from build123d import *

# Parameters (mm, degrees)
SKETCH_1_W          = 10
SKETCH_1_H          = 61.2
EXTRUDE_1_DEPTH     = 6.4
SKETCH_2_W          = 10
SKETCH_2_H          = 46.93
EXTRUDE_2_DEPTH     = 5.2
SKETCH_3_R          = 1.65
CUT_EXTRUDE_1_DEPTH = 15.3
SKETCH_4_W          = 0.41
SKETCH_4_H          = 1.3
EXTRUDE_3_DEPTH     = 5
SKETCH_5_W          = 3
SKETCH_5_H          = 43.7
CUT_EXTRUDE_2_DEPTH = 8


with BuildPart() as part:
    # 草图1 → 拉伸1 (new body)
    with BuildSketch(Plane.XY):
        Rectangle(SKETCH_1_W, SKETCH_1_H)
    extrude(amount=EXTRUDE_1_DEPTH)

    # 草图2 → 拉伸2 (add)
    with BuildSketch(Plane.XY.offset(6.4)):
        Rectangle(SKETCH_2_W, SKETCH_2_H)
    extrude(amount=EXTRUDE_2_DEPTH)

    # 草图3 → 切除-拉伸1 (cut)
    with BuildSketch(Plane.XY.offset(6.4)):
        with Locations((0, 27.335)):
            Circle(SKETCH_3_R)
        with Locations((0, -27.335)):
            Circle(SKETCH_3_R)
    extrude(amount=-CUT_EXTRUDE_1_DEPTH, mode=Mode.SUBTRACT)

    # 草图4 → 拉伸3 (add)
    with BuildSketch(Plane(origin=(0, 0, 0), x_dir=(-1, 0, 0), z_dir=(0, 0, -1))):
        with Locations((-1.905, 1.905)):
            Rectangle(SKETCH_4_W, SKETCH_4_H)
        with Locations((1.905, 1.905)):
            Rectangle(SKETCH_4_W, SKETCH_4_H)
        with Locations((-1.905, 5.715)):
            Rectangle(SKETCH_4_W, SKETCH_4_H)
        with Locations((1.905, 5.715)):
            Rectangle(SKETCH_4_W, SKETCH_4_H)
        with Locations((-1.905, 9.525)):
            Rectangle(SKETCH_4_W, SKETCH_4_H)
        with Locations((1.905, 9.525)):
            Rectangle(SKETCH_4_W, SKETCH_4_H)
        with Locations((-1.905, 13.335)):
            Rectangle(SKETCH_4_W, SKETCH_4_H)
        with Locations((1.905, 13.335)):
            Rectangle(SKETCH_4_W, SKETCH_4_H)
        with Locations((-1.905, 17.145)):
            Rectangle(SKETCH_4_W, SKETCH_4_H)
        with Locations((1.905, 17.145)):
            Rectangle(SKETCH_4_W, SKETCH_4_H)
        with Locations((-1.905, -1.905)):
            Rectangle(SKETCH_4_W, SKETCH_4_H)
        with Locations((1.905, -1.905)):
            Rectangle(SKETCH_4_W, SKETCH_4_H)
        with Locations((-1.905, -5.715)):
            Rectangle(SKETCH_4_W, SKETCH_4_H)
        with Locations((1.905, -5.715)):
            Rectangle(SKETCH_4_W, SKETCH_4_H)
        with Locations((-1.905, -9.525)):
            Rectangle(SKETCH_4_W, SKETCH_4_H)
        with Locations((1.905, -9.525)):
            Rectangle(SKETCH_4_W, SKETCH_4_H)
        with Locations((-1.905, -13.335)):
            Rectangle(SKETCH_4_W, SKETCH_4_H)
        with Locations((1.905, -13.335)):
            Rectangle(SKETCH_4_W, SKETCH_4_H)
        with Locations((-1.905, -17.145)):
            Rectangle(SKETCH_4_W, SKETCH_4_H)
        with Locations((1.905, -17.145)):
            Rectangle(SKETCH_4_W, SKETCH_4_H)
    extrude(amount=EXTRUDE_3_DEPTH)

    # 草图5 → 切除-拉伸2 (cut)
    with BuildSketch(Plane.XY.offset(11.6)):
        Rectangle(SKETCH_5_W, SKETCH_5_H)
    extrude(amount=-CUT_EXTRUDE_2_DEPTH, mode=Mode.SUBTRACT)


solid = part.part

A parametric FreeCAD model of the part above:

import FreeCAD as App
import Part
import Sketcher

doc = App.newDocument("Part")
params = doc.addObject("Spreadsheet::Sheet", "Params")
for row, (alias, value) in enumerate([
    ("sketch1_width", "10 mm"),
    ("sketch1_height", "61.2 mm"),
    ("pad1_length", "6.4 mm"),
    ("sketch2_width", "10 mm"),
    ("sketch2_height", "46.93 mm"),
    ("pad2_length", "5.2 mm"),
    ("sketch3_diameter", "3.3 mm"),
    ("pocket1_length", "15.3 mm"),
    ("sketch4_height", "1.3 mm"),
    ("sketch4_width", "0.41 mm"),
    ("pad3_length", "5 mm"),
    ("sketch5_width", "3 mm"),
    ("sketch5_height", "43.7 mm"),
    ("pocket2_length", "8 mm"),
], start=1):
    params.set(f"A{row}", alias)
    params.set(f"B{row}", "=" + value)
    params.setAlias(f"B{row}", alias)

body = doc.addObject("PartDesign::Body", "Body")

# Sketch on XY plane
sketch1 = body.newObject("Sketcher::SketchObject", "Sketch")
sketch1.AttachmentSupport = (doc.getObject("XY_Plane"), [""])
sketch1.MapMode = "FlatFace"
sketch1.addGeometry([
    Part.LineSegment(App.Vector(-5, 31, 0), App.Vector(-5, -31, 0)),
    Part.LineSegment(App.Vector(-5, -31, 0), App.Vector(5, -31, 0)),
    Part.LineSegment(App.Vector(5, -31, 0), App.Vector(5, 31, 0)),
    Part.LineSegment(App.Vector(5, 31, 0), App.Vector(-5, 31, 0)),
], False)
sketch1.addConstraint([
    Sketcher.Constraint("Coincident", 0, 2, 1, 1),
    Sketcher.Constraint("Coincident", 1, 2, 2, 1),
    Sketcher.Constraint("Coincident", 2, 2, 3, 1),
    Sketcher.Constraint("Coincident", 3, 2, 0, 1),
    Sketcher.Constraint("Vertical", 0),
    Sketcher.Constraint("Horizontal", 1),
    Sketcher.Constraint("Vertical", 2),
    Sketcher.Constraint("Horizontal", 3),
    Sketcher.Constraint("Symmetric", 0, 2, 2, 2, -1, 1),
    Sketcher.Constraint("DistanceX", 1, 1, 1, 2, 10.0),
    Sketcher.Constraint("DistanceY", 0, 2, 0, 1, 61.2),
])
sketch1.setExpression("Constraints[9]", "Params.sketch1_width")
sketch1.setExpression("Constraints[10]", "Params.sketch1_height")
pad1 = body.newObject("PartDesign::Pad", "Pad")
pad1.Profile = sketch1
pad1.setExpression("Length", "Params.pad1_length")

# Sketch on XY plane
sketch2 = body.newObject("Sketcher::SketchObject", "Sketch001")
sketch2.AttachmentSupport = (doc.getObject("XY_Plane"), [""])
sketch2.MapMode = "FlatFace"
sketch2.AttachmentOffset = App.Placement(App.Vector(0, 0, 6.4), App.Rotation())
sketch2.addGeometry([
    Part.LineSegment(App.Vector(-5, 23, 0), App.Vector(-5, -23, 0)),
    Part.LineSegment(App.Vector(-5, -23, 0), App.Vector(5, -23, 0)),
    Part.LineSegment(App.Vector(5, -23, 0), App.Vector(5, 23, 0)),
    Part.LineSegment(App.Vector(5, 23, 0), App.Vector(-5, 23, 0)),
], False)
sketch2.addConstraint([
    Sketcher.Constraint("Coincident", 0, 2, 1, 1),
    Sketcher.Constraint("Coincident", 1, 2, 2, 1),
    Sketcher.Constraint("Coincident", 2, 2, 3, 1),
    Sketcher.Constraint("Coincident", 3, 2, 0, 1),
    Sketcher.Constraint("Vertical", 0),
    Sketcher.Constraint("Horizontal", 1),
    Sketcher.Constraint("Vertical", 2),
    Sketcher.Constraint("Horizontal", 3),
    Sketcher.Constraint("Symmetric", 0, 2, 2, 2, -1, 1),
    Sketcher.Constraint("DistanceX", 1, 1, 1, 2, 10.0),
    Sketcher.Constraint("DistanceY", 0, 2, 0, 1, 46.93),
])
sketch2.setExpression("Constraints[9]", "Params.sketch2_width")
sketch2.setExpression("Constraints[10]", "Params.sketch2_height")
pad2 = body.newObject("PartDesign::Pad", "Pad001")
pad2.Profile = sketch2
pad2.setExpression("Length", "Params.pad2_length")

# Sketch on XY plane
sketch3 = body.newObject("Sketcher::SketchObject", "Sketch002")
sketch3.AttachmentSupport = (doc.getObject("XY_Plane"), [""])
sketch3.MapMode = "FlatFace"
sketch3.AttachmentOffset = App.Placement(App.Vector(0, 0, 6.4), App.Rotation())
sketch3.addGeometry([
    Part.Circle(App.Vector(0, 27.3, 0), App.Vector(0, 0, 1), 1.6),
    Part.Circle(App.Vector(0, -27.3, 0), App.Vector(0, 0, 1), 1.6),
], False)
sketch3.addConstraint([
    Sketcher.Constraint("Equal", 0, 1),
    Sketcher.Constraint("Symmetric", 0, 3, 1, 3, -1, 1),
    Sketcher.Constraint("PointOnObject", 0, 3, -2),
    Sketcher.Constraint("Diameter", 0, 3.3),
    Sketcher.Constraint("DistanceY", 1, 3, 0, 3, 54.67),
])
sketch3.setExpression("Constraints[3]", "Params.sketch3_diameter")
pocket1 = body.newObject("PartDesign::Pocket", "Pocket")
pocket1.Profile = sketch3
pocket1.setExpression("Length", "Params.pocket1_length")

# Sketch on XY plane
sketch4 = body.newObject("Sketcher::SketchObject", "Sketch003")
sketch4.AttachmentSupport = (doc.getObject("XY_Plane"), [""])
sketch4.MapMode = "FlatFace"
sketch4.addGeometry([
    Part.LineSegment(App.Vector(2.11, 2.56, 0), App.Vector(2.11, 1.25, 0)),  # 0
    Part.LineSegment(App.Vector(2.11, 1.25, 0), App.Vector(1.7, 1.25, 0)),  # 1
    Part.LineSegment(App.Vector(1.7, 1.25, 0), App.Vector(1.7, 2.56, 0)),  # 2
    Part.LineSegment(App.Vector(1.7, 2.56, 0), App.Vector(2.11, 2.56, 0)),  # 3
    Part.LineSegment(App.Vector(-1.7, 2.56, 0), App.Vector(-1.7, 1.25, 0)),  # 4
    Part.LineSegment(App.Vector(-1.7, 1.25, 0), App.Vector(-2.11, 1.25, 0)),  # 5
    Part.LineSegment(App.Vector(-2.11, 1.25, 0), App.Vector(-2.11, 2.56, 0)),  # 6
    Part.LineSegment(App.Vector(-2.11, 2.56, 0), App.Vector(-1.7, 2.56, 0)),  # 7
    Part.LineSegment(App.Vector(2.11, 6.37, 0), App.Vector(2.11, 5.07, 0)),  # 8
    Part.LineSegment(App.Vector(2.11, 5.07, 0), App.Vector(1.7, 5.07, 0)),  # 9
    Part.LineSegment(App.Vector(1.7, 5.07, 0), App.Vector(1.7, 6.37, 0)),  # 10
    Part.LineSegment(App.Vector(1.7, 6.37, 0), App.Vector(2.11, 6.37, 0)),  # 11
    Part.LineSegment(App.Vector(-1.7, 6.37, 0), App.Vector(-1.7, 5.07, 0)),  # 12
    Part.LineSegment(App.Vector(-1.7, 5.07, 0), App.Vector(-2.11, 5.07, 0)),  # 13
    Part.LineSegment(App.Vector(-2.11, 5.07, 0), App.Vector(-2.11, 6.37, 0)),  # 14
    Part.LineSegment(App.Vector(-2.11, 6.37, 0), App.Vector(-1.7, 6.37, 0)),  # 15
    Part.LineSegment(App.Vector(2.11, 10.18, 0), App.Vector(2.11, 8.88, 0)),  # 16
    Part.LineSegment(App.Vector(2.11, 8.88, 0), App.Vector(1.7, 8.88, 0)),  # 17
    Part.LineSegment(App.Vector(1.7, 8.88, 0), App.Vector(1.7, 10.18, 0)),  # 18
    Part.LineSegment(App.Vector(1.7, 10.18, 0), App.Vector(2.11, 10.18, 0)),  # 19
    Part.LineSegment(App.Vector(-1.7, 10.18, 0), App.Vector(-1.7, 8.88, 0)),  # 20
    Part.LineSegment(App.Vector(-1.7, 8.88, 0), App.Vector(-2.11, 8.88, 0)),  # 21
    Part.LineSegment(App.Vector(-2.11, 8.88, 0), App.Vector(-2.11, 10.18, 0)),  # 22
    Part.LineSegment(App.Vector(-2.11, 10.18, 0), App.Vector(-1.7, 10.18, 0)),  # 23
    Part.LineSegment(App.Vector(2.11, 13.98, 0), App.Vector(2.11, 12.69, 0)),  # 24
    Part.LineSegment(App.Vector(2.11, 12.69, 0), App.Vector(1.7, 12.69, 0)),  # 25
    Part.LineSegment(App.Vector(1.7, 12.69, 0), App.Vector(1.7, 13.98, 0)),  # 26
    Part.LineSegment(App.Vector(1.7, 13.98, 0), App.Vector(2.11, 13.98, 0)),  # 27
    Part.LineSegment(App.Vector(-1.7, 13.98, 0), App.Vector(-1.7, 12.69, 0)),  # 28
    Part.LineSegment(App.Vector(-1.7, 12.69, 0), App.Vector(-2.11, 12.69, 0)),  # 29
    Part.LineSegment(App.Vector(-2.11, 12.69, 0), App.Vector(-2.11, 13.98, 0)),  # 30
    Part.LineSegment(App.Vector(-2.11, 13.98, 0), App.Vector(-1.7, 13.98, 0)),  # 31
    Part.LineSegment(App.Vector(2.11, 17.8, 0), App.Vector(2.11, 16.5, 0)),  # 32
    Part.LineSegment(App.Vector(2.11, 16.5, 0), App.Vector(1.7, 16.5, 0)),  # 33
    Part.LineSegment(App.Vector(1.7, 16.5, 0), App.Vector(1.7, 17.8, 0)),  # 34
    Part.LineSegment(App.Vector(1.7, 17.8, 0), App.Vector(2.11, 17.8, 0)),  # 35
    Part.LineSegment(App.Vector(-1.7, 17.8, 0), App.Vector(-1.7, 16.5, 0)),  # 36
    Part.LineSegment(App.Vector(-1.7, 16.5, 0), App.Vector(-2.11, 16.5, 0)),  # 37
    Part.LineSegment(App.Vector(-2.11, 16.5, 0), App.Vector(-2.11, 17.8, 0)),  # 38
    Part.LineSegment(App.Vector(-2.11, 17.8, 0), App.Vector(-1.7, 17.8, 0)),  # 39
    Part.LineSegment(App.Vector(2.11, -1.25, 0), App.Vector(2.11, -2.56, 0)),  # 40
    Part.LineSegment(App.Vector(2.11, -2.56, 0), App.Vector(1.7, -2.56, 0)),  # 41
    Part.LineSegment(App.Vector(1.7, -2.56, 0), App.Vector(1.7, -1.25, 0)),  # 42
    Part.LineSegment(App.Vector(1.7, -1.25, 0), App.Vector(2.11, -1.25, 0)),  # 43
    Part.LineSegment(App.Vector(-1.7, -1.25, 0), App.Vector(-1.7, -2.56, 0)),  # 44
    Part.LineSegment(App.Vector(-1.7, -2.56, 0), App.Vector(-2.11, -2.56, 0)),  # 45
    Part.LineSegment(App.Vector(-2.11, -2.56, 0), App.Vector(-2.11, -1.25, 0)),  # 46
    Part.LineSegment(App.Vector(-2.11, -1.25, 0), App.Vector(-1.7, -1.25, 0)),  # 47
    Part.LineSegment(App.Vector(2.11, -5.07, 0), App.Vector(2.11, -6.37, 0)),  # 48
    Part.LineSegment(App.Vector(2.11, -6.37, 0), App.Vector(1.7, -6.37, 0)),  # 49
    Part.LineSegment(App.Vector(1.7, -6.37, 0), App.Vector(1.7, -5.07, 0)),  # 50
    Part.LineSegment(App.Vector(1.7, -5.07, 0), App.Vector(2.11, -5.07, 0)),  # 51
    Part.LineSegment(App.Vector(-1.7, -5.07, 0), App.Vector(-1.7, -6.37, 0)),  # 52
    Part.LineSegment(App.Vector(-1.7, -6.37, 0), App.Vector(-2.11, -6.37, 0)),  # 53
    Part.LineSegment(App.Vector(-2.11, -6.37, 0), App.Vector(-2.11, -5.07, 0)),  # 54
    Part.LineSegment(App.Vector(-2.11, -5.07, 0), App.Vector(-1.7, -5.07, 0)),  # 55
    Part.LineSegment(App.Vector(2.11, -8.88, 0), App.Vector(2.11, -10.18, 0)),  # 56
    Part.LineSegment(App.Vector(2.11, -10.18, 0), App.Vector(1.7, -10.18, 0)),  # 57
    Part.LineSegment(App.Vector(1.7, -10.18, 0), App.Vector(1.7, -8.88, 0)),  # 58
    Part.LineSegment(App.Vector(1.7, -8.88, 0), App.Vector(2.11, -8.88, 0)),  # 59
    Part.LineSegment(App.Vector(-1.7, -8.88, 0), App.Vector(-1.7, -10.18, 0)),  # 60
    Part.LineSegment(App.Vector(-1.7, -10.18, 0), App.Vector(-2.11, -10.18, 0)),  # 61
    Part.LineSegment(App.Vector(-2.11, -10.18, 0), App.Vector(-2.11, -8.88, 0)),  # 62
    Part.LineSegment(App.Vector(-2.11, -8.88, 0), App.Vector(-1.7, -8.88, 0)),  # 63
    Part.LineSegment(App.Vector(2.11, -12.69, 0), App.Vector(2.11, -13.98, 0)),  # 64
    Part.LineSegment(App.Vector(2.11, -13.98, 0), App.Vector(1.7, -13.98, 0)),  # 65
    Part.LineSegment(App.Vector(1.7, -13.98, 0), App.Vector(1.7, -12.69, 0)),  # 66
    Part.LineSegment(App.Vector(1.7, -12.69, 0), App.Vector(2.11, -12.69, 0)),  # 67
    Part.LineSegment(App.Vector(-1.7, -12.69, 0), App.Vector(-1.7, -13.98, 0)),  # 68
    Part.LineSegment(App.Vector(-1.7, -13.98, 0), App.Vector(-2.11, -13.98, 0)),  # 69
    Part.LineSegment(App.Vector(-2.11, -13.98, 0), App.Vector(-2.11, -12.69, 0)),  # 70
    Part.LineSegment(App.Vector(-2.11, -12.69, 0), App.Vector(-1.7, -12.69, 0)),  # 71
    Part.LineSegment(App.Vector(2.11, -16.5, 0), App.Vector(2.11, -17.8, 0)),  # 72
    Part.LineSegment(App.Vector(2.11, -17.8, 0), App.Vector(1.7, -17.8, 0)),  # 73
    Part.LineSegment(App.Vector(1.7, -17.8, 0), App.Vector(1.7, -16.5, 0)),  # 74
    Part.LineSegment(App.Vector(1.7, -16.5, 0), App.Vector(2.11, -16.5, 0)),  # 75
    Part.LineSegment(App.Vector(-1.7, -16.5, 0), App.Vector(-1.7, -17.8, 0)),  # 76
    Part.LineSegment(App.Vector(-1.7, -17.8, 0), App.Vector(-2.11, -17.8, 0)),  # 77
    Part.LineSegment(App.Vector(-2.11, -17.8, 0), App.Vector(-2.11, -16.5, 0)),  # 78
    Part.LineSegment(App.Vector(-2.11, -16.5, 0), App.Vector(-1.7, -16.5, 0)),  # 79
], False)
sketch4.addConstraint([
    Sketcher.Constraint("Coincident", 0, 2, 1, 1),
    Sketcher.Constraint("Coincident", 1, 2, 2, 1),
    Sketcher.Constraint("Coincident", 2, 2, 3, 1),
    Sketcher.Constraint("Coincident", 3, 2, 0, 1),
    Sketcher.Constraint("Coincident", 4, 2, 5, 1),
    Sketcher.Constraint("Coincident", 5, 2, 6, 1),
    Sketcher.Constraint("Coincident", 6, 2, 7, 1),
    Sketcher.Constraint("Coincident", 7, 2, 4, 1),
    Sketcher.Constraint("Coincident", 8, 2, 9, 1),
    Sketcher.Constraint("Coincident", 9, 2, 10, 1),
    Sketcher.Constraint("Coincident", 10, 2, 11, 1),
    Sketcher.Constraint("Coincident", 11, 2, 8, 1),
    Sketcher.Constraint("Coincident", 12, 2, 13, 1),
    Sketcher.Constraint("Coincident", 13, 2, 14, 1),
    Sketcher.Constraint("Coincident", 14, 2, 15, 1),
    Sketcher.Constraint("Coincident", 15, 2, 12, 1),
    Sketcher.Constraint("Coincident", 16, 2, 17, 1),
    Sketcher.Constraint("Coincident", 17, 2, 18, 1),
    Sketcher.Constraint("Coincident", 18, 2, 19, 1),
    Sketcher.Constraint("Coincident", 19, 2, 16, 1),
    Sketcher.Constraint("Coincident", 20, 2, 21, 1),
    Sketcher.Constraint("Coincident", 21, 2, 22, 1),
    Sketcher.Constraint("Coincident", 22, 2, 23, 1),
    Sketcher.Constraint("Coincident", 23, 2, 20, 1),
    Sketcher.Constraint("Coincident", 24, 2, 25, 1),
    Sketcher.Constraint("Coincident", 25, 2, 26, 1),
    Sketcher.Constraint("Coincident", 26, 2, 27, 1),
    Sketcher.Constraint("Coincident", 27, 2, 24, 1),
    Sketcher.Constraint("Coincident", 28, 2, 29, 1),
    Sketcher.Constraint("Coincident", 29, 2, 30, 1),
    Sketcher.Constraint("Coincident", 30, 2, 31, 1),
    Sketcher.Constraint("Coincident", 31, 2, 28, 1),
    Sketcher.Constraint("Coincident", 32, 2, 33, 1),
    Sketcher.Constraint("Coincident", 33, 2, 34, 1),
    Sketcher.Constraint("Coincident", 34, 2, 35, 1),
    Sketcher.Constraint("Coincident", 35, 2, 32, 1),
    Sketcher.Constraint("Coincident", 36, 2, 37, 1),
    Sketcher.Constraint("Coincident", 37, 2, 38, 1),
    Sketcher.Constraint("Coincident", 38, 2, 39, 1),
    Sketcher.Constraint("Coincident", 39, 2, 36, 1),
    Sketcher.Constraint("Coincident", 40, 2, 41, 1),
    Sketcher.Constraint("Coincident", 41, 2, 42, 1),
    Sketcher.Constraint("Coincident", 42, 2, 43, 1),
    Sketcher.Constraint("Coincident", 43, 2, 40, 1),
    Sketcher.Constraint("Coincident", 44, 2, 45, 1),
    Sketcher.Constraint("Coincident", 45, 2, 46, 1),
    Sketcher.Constraint("Coincident", 46, 2, 47, 1),
    Sketcher.Constraint("Coincident", 47, 2, 44, 1),
    Sketcher.Constraint("Coincident", 48, 2, 49, 1),
    Sketcher.Constraint("Coincident", 49, 2, 50, 1),
    Sketcher.Constraint("Coincident", 50, 2, 51, 1),
    Sketcher.Constraint("Coincident", 51, 2, 48, 1),
    Sketcher.Constraint("Coincident", 52, 2, 53, 1),
    Sketcher.Constraint("Coincident", 53, 2, 54, 1),
    Sketcher.Constraint("Coincident", 54, 2, 55, 1),
    Sketcher.Constraint("Coincident", 55, 2, 52, 1),
    Sketcher.Constraint("Coincident", 56, 2, 57, 1),
    Sketcher.Constraint("Coincident", 57, 2, 58, 1),
    Sketcher.Constraint("Coincident", 58, 2, 59, 1),
    Sketcher.Constraint("Coincident", 59, 2, 56, 1),
    Sketcher.Constraint("Coincident", 60, 2, 61, 1),
    Sketcher.Constraint("Coincident", 61, 2, 62, 1),
    Sketcher.Constraint("Coincident", 62, 2, 63, 1),
    Sketcher.Constraint("Coincident", 63, 2, 60, 1),
    Sketcher.Constraint("Coincident", 64, 2, 65, 1),
    Sketcher.Constraint("Coincident", 65, 2, 66, 1),
    Sketcher.Constraint("Coincident", 66, 2, 67, 1),
    Sketcher.Constraint("Coincident", 67, 2, 64, 1),
    Sketcher.Constraint("Coincident", 68, 2, 69, 1),
    Sketcher.Constraint("Coincident", 69, 2, 70, 1),
    Sketcher.Constraint("Coincident", 70, 2, 71, 1),
    Sketcher.Constraint("Coincident", 71, 2, 68, 1),
    Sketcher.Constraint("Coincident", 72, 2, 73, 1),
    Sketcher.Constraint("Coincident", 73, 2, 74, 1),
    Sketcher.Constraint("Coincident", 74, 2, 75, 1),
    Sketcher.Constraint("Coincident", 75, 2, 72, 1),
    Sketcher.Constraint("Coincident", 76, 2, 77, 1),
    Sketcher.Constraint("Coincident", 77, 2, 78, 1),
    Sketcher.Constraint("Coincident", 78, 2, 79, 1),
    Sketcher.Constraint("Coincident", 79, 2, 76, 1),
    Sketcher.Constraint("Vertical", 0),
    Sketcher.Constraint("Horizontal", 1),
    Sketcher.Constraint("Vertical", 2),
    Sketcher.Constraint("Horizontal", 3),
    Sketcher.Constraint("Vertical", 4),
    Sketcher.Constraint("Horizontal", 5),
    Sketcher.Constraint("Vertical", 6),
    Sketcher.Constraint("Horizontal", 7),
    Sketcher.Constraint("Vertical", 8),
    Sketcher.Constraint("Horizontal", 9),
    Sketcher.Constraint("Vertical", 10),
    Sketcher.Constraint("Horizontal", 11),
    Sketcher.Constraint("Vertical", 12),
    Sketcher.Constraint("Horizontal", 13),
    Sketcher.Constraint("Vertical", 14),
    Sketcher.Constraint("Horizontal", 15),
    Sketcher.Constraint("Vertical", 16),
    Sketcher.Constraint("Horizontal", 17),
    Sketcher.Constraint("Vertical", 18),
    Sketcher.Constraint("Horizontal", 19),
    Sketcher.Constraint("Vertical", 20),
    Sketcher.Constraint("Horizontal", 21),
    Sketcher.Constraint("Vertical", 22),
    Sketcher.Constraint("Horizontal", 23),
    Sketcher.Constraint("Vertical", 24),
    Sketcher.Constraint("Horizontal", 25),
    Sketcher.Constraint("Vertical", 26),
    Sketcher.Constraint("Horizontal", 27),
    Sketcher.Constraint("Vertical", 28),
    Sketcher.Constraint("Horizontal", 29),
    Sketcher.Constraint("Vertical", 30),
    Sketcher.Constraint("Horizontal", 31),
    Sketcher.Constraint("Vertical", 32),
    Sketcher.Constraint("Horizontal", 33),
    Sketcher.Constraint("Vertical", 34),
    Sketcher.Constraint("Horizontal", 35),
    Sketcher.Constraint("Vertical", 36),
    Sketcher.Constraint("Horizontal", 37),
    Sketcher.Constraint("Vertical", 38),
    Sketcher.Constraint("Horizontal", 39),
    Sketcher.Constraint("Vertical", 40),
    Sketcher.Constraint("Horizontal", 41),
    Sketcher.Constraint("Vertical", 42),
    Sketcher.Constraint("Horizontal", 43),
    Sketcher.Constraint("Vertical", 44),
    Sketcher.Constraint("Horizontal", 45),
    Sketcher.Constraint("Vertical", 46),
    Sketcher.Constraint("Horizontal", 47),
    Sketcher.Constraint("Vertical", 48),
    Sketcher.Constraint("Horizontal", 49),
    Sketcher.Constraint("Vertical", 50),
    Sketcher.Constraint("Horizontal", 51),
    Sketcher.Constraint("Vertical", 52),
    Sketcher.Constraint("Horizontal", 53),
    Sketcher.Constraint("Vertical", 54),
    Sketcher.Constraint("Horizontal", 55),
    Sketcher.Constraint("Vertical", 56),
    Sketcher.Constraint("Horizontal", 57),
    Sketcher.Constraint("Vertical", 58),
    Sketcher.Constraint("Horizontal", 59),
    Sketcher.Constraint("Vertical", 60),
    Sketcher.Constraint("Horizontal", 61),
    Sketcher.Constraint("Vertical", 62),
    Sketcher.Constraint("Horizontal", 63),
    Sketcher.Constraint("Vertical", 64),
    Sketcher.Constraint("Horizontal", 65),
    Sketcher.Constraint("Vertical", 66),
    Sketcher.Constraint("Horizontal", 67),
    Sketcher.Constraint("Vertical", 68),
    Sketcher.Constraint("Horizontal", 69),
    Sketcher.Constraint("Vertical", 70),
    Sketcher.Constraint("Horizontal", 71),
    Sketcher.Constraint("Vertical", 72),
    Sketcher.Constraint("Horizontal", 73),
    Sketcher.Constraint("Vertical", 74),
    Sketcher.Constraint("Horizontal", 75),
    Sketcher.Constraint("Vertical", 76),
    Sketcher.Constraint("Horizontal", 77),
    Sketcher.Constraint("Vertical", 78),
    Sketcher.Constraint("Horizontal", 79),
    Sketcher.Constraint("Symmetric", 6, 2, 40, 2, -1, 1),
    Sketcher.Constraint("Symmetric", 4, 2, 42, 2, -1, 1),
    Sketcher.Constraint("Symmetric", 2, 2, 44, 2, -1, 1),
    Sketcher.Constraint("Symmetric", 0, 2, 46, 2, -1, 1),
    Sketcher.Constraint("Symmetric", 14, 2, 48, 2, -1, 1),
    Sketcher.Constraint("Symmetric", 12, 2, 50, 2, -1, 1),
    Sketcher.Constraint("Symmetric", 10, 2, 52, 2, -1, 1),
    Sketcher.Constraint("Symmetric", 8, 2, 54, 2, -1, 1),
    Sketcher.Constraint("Symmetric", 22, 2, 56, 2, -1, 1),
    Sketcher.Constraint("Symmetric", 20, 2, 58, 2, -1, 1),
    Sketcher.Constraint("Symmetric", 18, 2, 60, 2, -1, 1),
    Sketcher.Constraint("Symmetric", 16, 2, 62, 2, -1, 1),
    Sketcher.Constraint("Symmetric", 30, 2, 64, 2, -1, 1),
    Sketcher.Constraint("Symmetric", 28, 2, 66, 2, -1, 1),
    Sketcher.Constraint("Symmetric", 26, 2, 68, 2, -1, 1),
    Sketcher.Constraint("Symmetric", 24, 2, 70, 2, -1, 1),
    Sketcher.Constraint("Symmetric", 38, 2, 72, 2, -1, 1),
    Sketcher.Constraint("Symmetric", 36, 2, 74, 2, -1, 1),
    Sketcher.Constraint("Symmetric", 34, 2, 76, 2, -1, 1),
    Sketcher.Constraint("Symmetric", 32, 2, 78, 2, -1, 1),
    Sketcher.Constraint("Symmetric", 1, 2, 4, 2, -2),
    Sketcher.Constraint("Symmetric", 3, 2, 6, 2, -2),
    Sketcher.Constraint("Symmetric", 9, 2, 12, 2, -2),
    Sketcher.Constraint("Symmetric", 11, 2, 14, 2, -2),
    Sketcher.Constraint("Symmetric", 17, 2, 20, 2, -2),
    Sketcher.Constraint("Symmetric", 19, 2, 22, 2, -2),
    Sketcher.Constraint("Symmetric", 25, 2, 28, 2, -2),
    Sketcher.Constraint("Symmetric", 27, 2, 30, 2, -2),
    Sketcher.Constraint("Symmetric", 33, 2, 36, 2, -2),
    Sketcher.Constraint("Symmetric", 35, 2, 38, 2, -2),
    Sketcher.Constraint("Vertical", 3, 2, 8, 2),
    Sketcher.Constraint("Vertical", 2, 2, 9, 2),
    Sketcher.Constraint("Vertical", 11, 2, 16, 2),
    Sketcher.Constraint("Vertical", 10, 2, 17, 2),
    Sketcher.Constraint("Vertical", 19, 2, 24, 2),
    Sketcher.Constraint("Vertical", 18, 2, 25, 2),
    Sketcher.Constraint("Vertical", 27, 2, 32, 2),
    Sketcher.Constraint("Vertical", 26, 2, 33, 2),
    Sketcher.Constraint("Equal", 6, 8),
    Sketcher.Constraint("Equal", 14, 16),
    Sketcher.Constraint("Equal", 22, 24),
    Sketcher.Constraint("Equal", 30, 32),
    Sketcher.Constraint("DistanceY", 0, 2, 0, 1, 1.3),
    Sketcher.Constraint("DistanceX", 1, 2, 1, 1, 0.41),
    Sketcher.Constraint("DistanceX", -1, 1, 1, 2, 1.7),
    Sketcher.Constraint("DistanceY", -1, 1, 0, 2, 1.255),
    Sketcher.Constraint("DistanceY", -1, 1, 8, 2, 5.065),
    Sketcher.Constraint("DistanceY", -1, 1, 16, 2, 8.875),
    Sketcher.Constraint("DistanceY", -1, 1, 24, 2, 12.685),
    Sketcher.Constraint("DistanceY", -1, 1, 32, 2, 16.495),
])
sketch4.setExpression("Constraints[202]", "Params.sketch4_height")
sketch4.setExpression("Constraints[203]", "Params.sketch4_width")
pad3 = body.newObject("PartDesign::Pad", "Pad002")
pad3.Profile = sketch4
pad3.setExpression("Length", "Params.pad3_length")
pad3.Reversed = True

# Sketch on XY plane
sketch5 = body.newObject("Sketcher::SketchObject", "Sketch004")
sketch5.AttachmentSupport = (doc.getObject("XY_Plane"), [""])
sketch5.MapMode = "FlatFace"
sketch5.AttachmentOffset = App.Placement(App.Vector(0, 0, 11.6), App.Rotation())
sketch5.addGeometry([
    Part.LineSegment(App.Vector(-1.5, 21.9, 0), App.Vector(-1.5, -21.9, 0)),
    Part.LineSegment(App.Vector(-1.5, -21.9, 0), App.Vector(1.5, -21.9, 0)),
    Part.LineSegment(App.Vector(1.5, -21.9, 0), App.Vector(1.5, 21.9, 0)),
    Part.LineSegment(App.Vector(1.5, 21.9, 0), App.Vector(-1.5, 21.9, 0)),
], False)
sketch5.addConstraint([
    Sketcher.Constraint("Coincident", 0, 2, 1, 1),
    Sketcher.Constraint("Coincident", 1, 2, 2, 1),
    Sketcher.Constraint("Coincident", 2, 2, 3, 1),
    Sketcher.Constraint("Coincident", 3, 2, 0, 1),
    Sketcher.Constraint("Vertical", 0),
    Sketcher.Constraint("Horizontal", 1),
    Sketcher.Constraint("Vertical", 2),
    Sketcher.Constraint("Horizontal", 3),
    Sketcher.Constraint("Symmetric", 0, 2, 2, 2, -1, 1),
    Sketcher.Constraint("DistanceX", 1, 1, 1, 2, 3.0),
    Sketcher.Constraint("DistanceY", 0, 2, 0, 1, 43.7),
])
sketch5.setExpression("Constraints[9]", "Params.sketch5_width")
sketch5.setExpression("Constraints[10]", "Params.sketch5_height")
pocket2 = body.newObject("PartDesign::Pocket", "Pocket001")
pocket2.Profile = sketch5
pocket2.setExpression("Length", "Params.pocket2_length")

doc.recompute()
